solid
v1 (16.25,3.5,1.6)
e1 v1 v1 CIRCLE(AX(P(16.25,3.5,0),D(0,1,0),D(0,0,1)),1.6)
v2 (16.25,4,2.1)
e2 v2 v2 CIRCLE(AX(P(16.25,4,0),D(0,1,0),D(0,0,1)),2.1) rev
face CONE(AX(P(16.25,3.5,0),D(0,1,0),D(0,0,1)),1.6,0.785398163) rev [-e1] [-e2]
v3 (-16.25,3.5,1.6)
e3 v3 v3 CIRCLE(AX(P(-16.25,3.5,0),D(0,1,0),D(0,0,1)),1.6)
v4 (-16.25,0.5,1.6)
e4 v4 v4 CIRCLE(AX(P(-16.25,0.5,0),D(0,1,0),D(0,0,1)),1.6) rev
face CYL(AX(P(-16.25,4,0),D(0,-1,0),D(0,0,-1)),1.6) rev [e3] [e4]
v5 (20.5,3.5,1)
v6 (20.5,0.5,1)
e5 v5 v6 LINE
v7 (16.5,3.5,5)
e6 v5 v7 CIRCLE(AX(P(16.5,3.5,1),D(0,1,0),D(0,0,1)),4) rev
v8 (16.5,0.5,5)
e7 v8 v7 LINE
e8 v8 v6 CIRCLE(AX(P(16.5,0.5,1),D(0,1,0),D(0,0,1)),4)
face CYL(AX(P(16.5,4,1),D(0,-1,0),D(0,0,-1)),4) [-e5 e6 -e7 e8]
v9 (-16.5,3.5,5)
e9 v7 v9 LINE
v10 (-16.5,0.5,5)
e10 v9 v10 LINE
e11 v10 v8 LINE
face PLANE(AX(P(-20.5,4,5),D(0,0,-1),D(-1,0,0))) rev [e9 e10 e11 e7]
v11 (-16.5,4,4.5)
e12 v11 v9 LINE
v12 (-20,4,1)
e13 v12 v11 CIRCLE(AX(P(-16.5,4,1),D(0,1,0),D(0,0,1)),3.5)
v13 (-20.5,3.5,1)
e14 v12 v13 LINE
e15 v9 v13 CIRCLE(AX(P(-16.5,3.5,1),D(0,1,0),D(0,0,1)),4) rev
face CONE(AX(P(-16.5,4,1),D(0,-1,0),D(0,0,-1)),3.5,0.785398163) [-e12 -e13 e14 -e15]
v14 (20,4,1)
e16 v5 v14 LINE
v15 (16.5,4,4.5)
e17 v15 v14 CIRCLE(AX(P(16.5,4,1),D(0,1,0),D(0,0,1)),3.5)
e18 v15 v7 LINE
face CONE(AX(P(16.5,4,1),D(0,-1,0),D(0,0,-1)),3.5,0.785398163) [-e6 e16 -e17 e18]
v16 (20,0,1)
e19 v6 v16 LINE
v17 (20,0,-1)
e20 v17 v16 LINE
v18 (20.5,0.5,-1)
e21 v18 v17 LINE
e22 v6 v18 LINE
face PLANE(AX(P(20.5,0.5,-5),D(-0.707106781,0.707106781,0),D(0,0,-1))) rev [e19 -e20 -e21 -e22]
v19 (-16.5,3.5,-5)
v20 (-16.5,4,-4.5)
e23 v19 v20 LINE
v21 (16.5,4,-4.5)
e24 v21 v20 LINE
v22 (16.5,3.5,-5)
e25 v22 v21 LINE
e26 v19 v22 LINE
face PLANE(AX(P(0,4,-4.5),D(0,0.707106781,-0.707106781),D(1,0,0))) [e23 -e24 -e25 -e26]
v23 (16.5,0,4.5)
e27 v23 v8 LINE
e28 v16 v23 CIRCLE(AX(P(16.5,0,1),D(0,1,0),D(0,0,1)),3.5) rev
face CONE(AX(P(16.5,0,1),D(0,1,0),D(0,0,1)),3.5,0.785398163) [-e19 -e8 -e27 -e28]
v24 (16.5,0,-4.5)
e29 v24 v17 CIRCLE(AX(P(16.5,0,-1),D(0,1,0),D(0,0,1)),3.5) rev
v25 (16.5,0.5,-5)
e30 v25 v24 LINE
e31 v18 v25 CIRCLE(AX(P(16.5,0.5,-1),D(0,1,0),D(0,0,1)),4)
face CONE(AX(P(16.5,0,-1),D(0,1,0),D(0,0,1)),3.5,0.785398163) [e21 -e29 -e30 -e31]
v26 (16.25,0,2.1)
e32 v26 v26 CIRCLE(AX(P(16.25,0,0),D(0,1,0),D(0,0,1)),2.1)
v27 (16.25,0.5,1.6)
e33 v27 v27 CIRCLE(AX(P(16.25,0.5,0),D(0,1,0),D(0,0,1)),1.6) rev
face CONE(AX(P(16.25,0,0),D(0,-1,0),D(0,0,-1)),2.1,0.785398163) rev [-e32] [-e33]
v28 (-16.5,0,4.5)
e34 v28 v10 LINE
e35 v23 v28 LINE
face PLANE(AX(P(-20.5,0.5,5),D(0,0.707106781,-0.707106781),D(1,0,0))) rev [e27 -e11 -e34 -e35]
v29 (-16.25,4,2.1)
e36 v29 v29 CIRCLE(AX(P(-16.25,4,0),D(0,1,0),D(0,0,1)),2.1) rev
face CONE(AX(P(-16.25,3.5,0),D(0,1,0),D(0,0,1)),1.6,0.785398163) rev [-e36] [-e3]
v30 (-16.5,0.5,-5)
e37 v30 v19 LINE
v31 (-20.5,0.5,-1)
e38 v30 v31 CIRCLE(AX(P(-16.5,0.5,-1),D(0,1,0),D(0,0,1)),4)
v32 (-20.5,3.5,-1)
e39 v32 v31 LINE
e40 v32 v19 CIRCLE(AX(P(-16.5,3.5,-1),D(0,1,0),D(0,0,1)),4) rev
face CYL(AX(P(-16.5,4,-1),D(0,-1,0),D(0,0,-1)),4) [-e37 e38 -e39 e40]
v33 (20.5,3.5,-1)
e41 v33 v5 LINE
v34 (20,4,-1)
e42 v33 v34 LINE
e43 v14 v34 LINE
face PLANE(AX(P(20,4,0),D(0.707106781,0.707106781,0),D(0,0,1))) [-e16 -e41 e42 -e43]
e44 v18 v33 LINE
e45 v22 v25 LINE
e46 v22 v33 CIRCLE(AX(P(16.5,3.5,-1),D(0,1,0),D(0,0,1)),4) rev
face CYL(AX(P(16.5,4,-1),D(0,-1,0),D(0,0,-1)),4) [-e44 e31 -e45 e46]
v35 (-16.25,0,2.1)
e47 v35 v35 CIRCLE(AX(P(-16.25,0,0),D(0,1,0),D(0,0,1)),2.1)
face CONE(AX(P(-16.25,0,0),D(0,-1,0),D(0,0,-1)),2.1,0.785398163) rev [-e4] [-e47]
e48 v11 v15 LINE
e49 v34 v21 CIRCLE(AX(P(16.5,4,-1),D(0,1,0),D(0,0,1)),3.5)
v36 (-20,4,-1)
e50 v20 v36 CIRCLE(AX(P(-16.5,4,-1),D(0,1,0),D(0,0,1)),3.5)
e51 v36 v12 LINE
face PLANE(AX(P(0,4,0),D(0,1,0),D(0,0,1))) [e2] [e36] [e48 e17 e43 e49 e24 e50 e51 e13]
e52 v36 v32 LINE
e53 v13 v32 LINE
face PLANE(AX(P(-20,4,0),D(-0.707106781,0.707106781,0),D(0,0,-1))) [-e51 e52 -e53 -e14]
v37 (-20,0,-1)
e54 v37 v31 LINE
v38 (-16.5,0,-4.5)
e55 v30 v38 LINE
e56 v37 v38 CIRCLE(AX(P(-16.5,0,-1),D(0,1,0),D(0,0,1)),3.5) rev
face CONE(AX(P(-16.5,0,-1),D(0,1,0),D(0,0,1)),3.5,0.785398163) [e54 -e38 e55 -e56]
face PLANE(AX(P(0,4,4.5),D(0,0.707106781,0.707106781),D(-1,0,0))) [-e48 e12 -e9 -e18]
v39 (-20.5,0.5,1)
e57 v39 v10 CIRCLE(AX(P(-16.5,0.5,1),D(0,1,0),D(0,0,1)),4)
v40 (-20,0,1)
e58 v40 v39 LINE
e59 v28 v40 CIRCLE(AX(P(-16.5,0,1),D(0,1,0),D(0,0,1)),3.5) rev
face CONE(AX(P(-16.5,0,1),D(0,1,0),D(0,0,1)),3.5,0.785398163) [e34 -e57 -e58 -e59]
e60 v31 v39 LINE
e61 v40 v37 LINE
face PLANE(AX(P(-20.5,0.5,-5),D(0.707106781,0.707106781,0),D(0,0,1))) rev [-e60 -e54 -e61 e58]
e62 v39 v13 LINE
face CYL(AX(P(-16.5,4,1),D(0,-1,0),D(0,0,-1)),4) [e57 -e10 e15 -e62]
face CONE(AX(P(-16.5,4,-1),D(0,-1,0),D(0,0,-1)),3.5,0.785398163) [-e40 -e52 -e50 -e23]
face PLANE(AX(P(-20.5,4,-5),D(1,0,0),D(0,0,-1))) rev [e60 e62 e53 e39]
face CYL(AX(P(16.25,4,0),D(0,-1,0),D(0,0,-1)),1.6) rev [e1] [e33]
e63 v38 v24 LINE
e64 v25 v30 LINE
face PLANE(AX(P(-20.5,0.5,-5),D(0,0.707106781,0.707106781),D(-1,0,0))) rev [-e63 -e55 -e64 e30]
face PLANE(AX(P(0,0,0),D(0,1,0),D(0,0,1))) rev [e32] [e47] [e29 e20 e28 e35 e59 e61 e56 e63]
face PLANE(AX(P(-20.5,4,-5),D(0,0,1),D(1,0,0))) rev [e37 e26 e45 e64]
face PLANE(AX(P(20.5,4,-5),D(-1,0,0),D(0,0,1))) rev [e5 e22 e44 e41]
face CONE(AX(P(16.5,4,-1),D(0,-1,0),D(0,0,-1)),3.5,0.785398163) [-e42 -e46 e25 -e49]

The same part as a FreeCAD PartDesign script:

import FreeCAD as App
import Part
import Sketcher


def edges_at(feature, points):
    """Names of the edges that pass closest to the given points."""
    edges = feature.Shape.Edges
    near = lambda p: min(range(len(edges)), key=lambda i: edges[i].distToShape(Part.Vertex(*p))[0])
    return sorted({f"Edge{near(p) + 1}" for p in points})


def add_polygon(sketch, points):
    """Adds a closed chain of lines whose ends are joined by coincident constraints."""
    first, n = sketch.GeometryCount, len(points)
    for a, b in zip(points, points[1:] + points[:1]):
        sketch.addGeometry(Part.LineSegment(App.Vector(*a, 0), App.Vector(*b, 0)), False)
    for i in range(n):
        sketch.addConstraint(Sketcher.Constraint("Coincident", first + i, 2, first + (i + 1) % n, 1))

doc = App.newDocument("Part")
body = doc.addObject("PartDesign::Body", "Body")

# Sketch on XZ plane
sketch1 = body.newObject("Sketcher::SketchObject", "Sketch")
sketch1.AttachmentSupport = (doc.getObject("XZ_Plane"), [""])
sketch1.MapMode = "FlatFace"
add_polygon(sketch1, [(-20.5, -5), (-20.5, 5), (20.5, 5), (20.5, -5)])  # lines 0-3
sketch1.addGeometry(Part.Circle(App.Vector(-16.2, 0, 0), App.Vector(0, 0, 1), 1.6), False)  # 4
sketch1.addGeometry(Part.Circle(App.Vector(16.2, 0, 0), App.Vector(0, 0, 1), 1.6), False)  # 5
sketch1.addConstraint([
    Sketcher.Constraint("Vertical", 0),
    Sketcher.Constraint("Horizontal", 1),
    Sketcher.Constraint("Vertical", 2),
    Sketcher.Constraint("Horizontal", 3),
    Sketcher.Constraint("Equal", 4, 5),
    Sketcher.Constraint("Symmetric", 4, 3, 5, 3, -1, 1),
    Sketcher.Constraint("Symmetric", 0, 2, 2, 2, -1, 1),
    Sketcher.Constraint("PointOnObject", 4, 3, -1),
    Sketcher.Constraint("Diameter", 4, 3.2),
    Sketcher.Constraint("DistanceX", 1, 1, 1, 2, 41.0),
    Sketcher.Constraint("DistanceY", 0, 1, 0, 2, 10.0),
    Sketcher.Constraint("DistanceX", 4, 3, 5, 3, 32.5),
])
pad1 = body.newObject("PartDesign::Pad", "Pad")
pad1.Profile = sketch1
pad1.Length = 4
pad1.Reversed = True
doc.recompute()

fillet = body.newObject("PartDesign::Fillet", "Fillet")
fillet.Base = (pad1, edges_at(pad1, [
    (20.5, 2, 5),
    (-20.5, 2, 5),
    (-20.5, 2, -5),
    (20.5, 2, -5),
]))
fillet.Radius = 4
doc.recompute()

chamfer = body.newObject("PartDesign::Chamfer", "Chamfer")
chamfer.Base = (fillet, edges_at(fillet, [
    (-16.25, 0, -1.6),
    (-16.25, 4, -1.6),
    (16.25, 0, -1.6),
    (16.25, 4, -1.6),
    (0, 0, -5),
    (0, 4, -5),
    (20.5, 0, 0),
    (0, 0, 5),
    (-20.5, 0, 0),
    (-19.328, 0, -3.828),
    (-19.328, 0, 3.828),
    (19.328, 0, 3.828),
    (19.328, 0, -3.828),
    (20.5, 4, 0),
    (-20.5, 4, 0),
    (0, 4, 5),
    (-19.328, 4, -3.828),
    (-19.328, 4, 3.828),
    (19.328, 4, 3.828),
    (19.328, 4, -3.828),
]))
chamfer.Size = 0.5

doc.recompute()
